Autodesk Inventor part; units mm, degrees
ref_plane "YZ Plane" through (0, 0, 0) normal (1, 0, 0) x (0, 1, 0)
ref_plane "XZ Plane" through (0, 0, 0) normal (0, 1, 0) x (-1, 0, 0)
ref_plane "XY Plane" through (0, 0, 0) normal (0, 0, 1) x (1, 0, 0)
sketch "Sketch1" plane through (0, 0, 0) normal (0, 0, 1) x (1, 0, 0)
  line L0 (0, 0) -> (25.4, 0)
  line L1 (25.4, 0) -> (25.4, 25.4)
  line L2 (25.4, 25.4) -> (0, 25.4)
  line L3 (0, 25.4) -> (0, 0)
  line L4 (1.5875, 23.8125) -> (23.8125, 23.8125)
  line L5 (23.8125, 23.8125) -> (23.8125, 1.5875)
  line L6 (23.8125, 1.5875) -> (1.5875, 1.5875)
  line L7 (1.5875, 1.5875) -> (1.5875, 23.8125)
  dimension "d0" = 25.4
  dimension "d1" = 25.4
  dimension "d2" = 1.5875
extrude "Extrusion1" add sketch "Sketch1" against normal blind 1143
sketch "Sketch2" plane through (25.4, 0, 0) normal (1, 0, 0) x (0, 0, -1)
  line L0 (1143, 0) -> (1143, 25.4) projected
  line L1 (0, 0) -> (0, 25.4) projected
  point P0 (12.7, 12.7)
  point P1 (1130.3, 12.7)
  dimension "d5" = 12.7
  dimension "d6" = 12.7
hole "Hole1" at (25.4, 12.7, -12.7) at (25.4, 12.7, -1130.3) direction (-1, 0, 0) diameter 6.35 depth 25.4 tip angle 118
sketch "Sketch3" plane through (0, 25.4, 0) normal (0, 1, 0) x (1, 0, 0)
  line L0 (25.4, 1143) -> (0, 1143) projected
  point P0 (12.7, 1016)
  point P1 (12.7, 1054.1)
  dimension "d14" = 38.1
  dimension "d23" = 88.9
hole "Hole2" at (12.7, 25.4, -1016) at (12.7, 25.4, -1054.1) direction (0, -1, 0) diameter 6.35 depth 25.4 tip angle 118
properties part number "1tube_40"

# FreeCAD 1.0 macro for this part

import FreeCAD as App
import Part
import Sketcher

V = App.Vector
Q = App.Units.Quantity


def add_polygon(sketch, points):
    """Adds a closed chain of lines whose ends are joined by coincident constraints."""
    first, n = sketch.GeometryCount, len(points)
    for a, b in zip(points, points[1:] + points[:1]):
        sketch.addGeometry(Part.LineSegment(App.Vector(*a, 0), App.Vector(*b, 0)), False)
    for i in range(n):
        sketch.addConstraint(Sketcher.Constraint("Coincident", first + i, 2, first + (i + 1) % n, 1))

doc = App.newDocument("Part")
body = doc.addObject("PartDesign::Body", "Body")

# Sketch on XY plane
sketch1 = body.newObject("Sketcher::SketchObject", "Sketch")
sketch1.AttachmentSupport = (doc.getObject("XY_Plane"), [""])
sketch1.MapMode = "FlatFace"
add_polygon(sketch1, [(0, 25), (0, 0), (25, 0), (25, 25)])  # lines 0-3
add_polygon(sketch1, [(2, 2), (2, 24), (24, 24), (24, 2)])  # lines 4-7
sketch1.addConstraint(Sketcher.Constraint("Vertical", 0))
sketch1.addConstraint(Sketcher.Constraint("Horizontal", 1))
sketch1.addConstraint(Sketcher.Constraint("Vertical", 2))
sketch1.addConstraint(Sketcher.Constraint("Horizontal", 3))
sketch1.addConstraint(Sketcher.Constraint("Vertical", 4))
sketch1.addConstraint(Sketcher.Constraint("Horizontal", 5))
sketch1.addConstraint(Sketcher.Constraint("Vertical", 6))
sketch1.addConstraint(Sketcher.Constraint("Horizontal", 7))
sketch1.addConstraint(Sketcher.Constraint("Coincident", 0, 2, -1, 1))
sketch1.addConstraint(Sketcher.Constraint("Equal", 3, 0))
sketch1.addConstraint(Sketcher.Constraint("Equal", 7, 4))
sketch1.addConstraint(Sketcher.Constraint("DistanceX", 1, 1, 1, 2, Q("1 in")))
sketch1.addConstraint(Sketcher.Constraint("DistanceX", -1, 1, 4, 2, Q("0.0625 in")))
sketch1.addConstraint(Sketcher.Constraint("DistanceY", -1, 1, 6, 2, Q("0.0625 in")))
sketch1.addConstraint(Sketcher.Constraint("DistanceY", 4, 2, 3, 2, Q("0.0625 in")))
pad1 = body.newObject("PartDesign::Pad", "Pad")
pad1.Profile = sketch1
pad1.Length = Q("45 in")
pad1.Reversed = True

# Sketch on YZ plane
sketch2 = body.newObject("Sketcher::SketchObject", "Sketch001")
sketch2.AttachmentSupport = (doc.getObject("YZ_Plane"), [""])
sketch2.MapMode = "FlatFace"
sketch2.AttachmentOffset = App.Placement(V(0, 0, 1 * 25.4), App.Rotation())
sketch2.addGeometry(Part.Circle(V(12.7, -12.7, 0), V(0, 0, 1), 3.2), False)
sketch2.addGeometry(Part.Circle(V(12.7, -1130.3, 0), V(0, 0, 1), 3.2), False)
sketch2.addConstraint(Sketcher.Constraint("Equal", 0, 1))
sketch2.addConstraint(Sketcher.Constraint("Vertical", 0, 3, 1, 3))
sketch2.addConstraint(Sketcher.Constraint("Diameter", 0, Q("0.25 in")))
sketch2.addConstraint(Sketcher.Constraint("DistanceY", 1, 3, 0, 3, Q("44 in")))
sketch2.addConstraint(Sketcher.Constraint("DistanceX", -1, 1, 0, 3, Q("0.5 in")))
sketch2.addConstraint(Sketcher.Constraint("DistanceY", 0, 3, -1, 1, Q("0.5 in")))
doc.recompute()
hole = body.newObject("PartDesign::Hole", "Hole")
hole.Profile = sketch2
hole.ThreadType = "None"
hole.Diameter = Q("0.25 in")
hole.DepthType = "Dimension"
hole.Depth = Q("1 in")
hole.DrillPoint = "Angled"
hole.DrillPointAngle = 118

# Sketch on XZ plane
sketch3 = body.newObject("Sketcher::SketchObject", "Sketch002")
sketch3.AttachmentSupport = (doc.getObject("XZ_Plane"), [""])
sketch3.MapMode = "FlatFace"
sketch3.AttachmentOffset = App.Placement(V(0, 0, -1 * 25.4), App.Rotation())
sketch3.addGeometry(Part.Circle(V(12.7, -1016, 0), V(0, 0, 1), 3.2), False)
sketch3.addGeometry(Part.Circle(V(12.7, -1054.1, 0), V(0, 0, 1), 3.2), False)
sketch3.addConstraint(Sketcher.Constraint("Equal", 0, 1))
sketch3.addConstraint(Sketcher.Constraint("Vertical", 0, 3, 1, 3))
sketch3.addConstraint(Sketcher.Constraint("Diameter", 0, Q("0.25 in")))
sketch3.addConstraint(Sketcher.Constraint("DistanceY", 0, 3, -1, 1, Q("40 in")))
sketch3.addConstraint(Sketcher.Constraint("DistanceX", -1, 1, 0, 3, Q("0.5 in")))
sketch3.addConstraint(Sketcher.Constraint("DistanceY", 1, 3, -1, 1, Q("41.5 in")))
doc.recompute()
hole2 = body.newObject("PartDesign::Hole", "Hole001")
hole2.Profile = sketch3
hole2.ThreadType = "None"
hole2.Diameter = Q("0.25 in")
hole2.DepthType = "Dimension"
hole2.Depth = Q("1 in")
hole2.DrillPoint = "Angled"
hole2.DrillPointAngle = 118
hole2.Reversed = True

doc.recompute()
